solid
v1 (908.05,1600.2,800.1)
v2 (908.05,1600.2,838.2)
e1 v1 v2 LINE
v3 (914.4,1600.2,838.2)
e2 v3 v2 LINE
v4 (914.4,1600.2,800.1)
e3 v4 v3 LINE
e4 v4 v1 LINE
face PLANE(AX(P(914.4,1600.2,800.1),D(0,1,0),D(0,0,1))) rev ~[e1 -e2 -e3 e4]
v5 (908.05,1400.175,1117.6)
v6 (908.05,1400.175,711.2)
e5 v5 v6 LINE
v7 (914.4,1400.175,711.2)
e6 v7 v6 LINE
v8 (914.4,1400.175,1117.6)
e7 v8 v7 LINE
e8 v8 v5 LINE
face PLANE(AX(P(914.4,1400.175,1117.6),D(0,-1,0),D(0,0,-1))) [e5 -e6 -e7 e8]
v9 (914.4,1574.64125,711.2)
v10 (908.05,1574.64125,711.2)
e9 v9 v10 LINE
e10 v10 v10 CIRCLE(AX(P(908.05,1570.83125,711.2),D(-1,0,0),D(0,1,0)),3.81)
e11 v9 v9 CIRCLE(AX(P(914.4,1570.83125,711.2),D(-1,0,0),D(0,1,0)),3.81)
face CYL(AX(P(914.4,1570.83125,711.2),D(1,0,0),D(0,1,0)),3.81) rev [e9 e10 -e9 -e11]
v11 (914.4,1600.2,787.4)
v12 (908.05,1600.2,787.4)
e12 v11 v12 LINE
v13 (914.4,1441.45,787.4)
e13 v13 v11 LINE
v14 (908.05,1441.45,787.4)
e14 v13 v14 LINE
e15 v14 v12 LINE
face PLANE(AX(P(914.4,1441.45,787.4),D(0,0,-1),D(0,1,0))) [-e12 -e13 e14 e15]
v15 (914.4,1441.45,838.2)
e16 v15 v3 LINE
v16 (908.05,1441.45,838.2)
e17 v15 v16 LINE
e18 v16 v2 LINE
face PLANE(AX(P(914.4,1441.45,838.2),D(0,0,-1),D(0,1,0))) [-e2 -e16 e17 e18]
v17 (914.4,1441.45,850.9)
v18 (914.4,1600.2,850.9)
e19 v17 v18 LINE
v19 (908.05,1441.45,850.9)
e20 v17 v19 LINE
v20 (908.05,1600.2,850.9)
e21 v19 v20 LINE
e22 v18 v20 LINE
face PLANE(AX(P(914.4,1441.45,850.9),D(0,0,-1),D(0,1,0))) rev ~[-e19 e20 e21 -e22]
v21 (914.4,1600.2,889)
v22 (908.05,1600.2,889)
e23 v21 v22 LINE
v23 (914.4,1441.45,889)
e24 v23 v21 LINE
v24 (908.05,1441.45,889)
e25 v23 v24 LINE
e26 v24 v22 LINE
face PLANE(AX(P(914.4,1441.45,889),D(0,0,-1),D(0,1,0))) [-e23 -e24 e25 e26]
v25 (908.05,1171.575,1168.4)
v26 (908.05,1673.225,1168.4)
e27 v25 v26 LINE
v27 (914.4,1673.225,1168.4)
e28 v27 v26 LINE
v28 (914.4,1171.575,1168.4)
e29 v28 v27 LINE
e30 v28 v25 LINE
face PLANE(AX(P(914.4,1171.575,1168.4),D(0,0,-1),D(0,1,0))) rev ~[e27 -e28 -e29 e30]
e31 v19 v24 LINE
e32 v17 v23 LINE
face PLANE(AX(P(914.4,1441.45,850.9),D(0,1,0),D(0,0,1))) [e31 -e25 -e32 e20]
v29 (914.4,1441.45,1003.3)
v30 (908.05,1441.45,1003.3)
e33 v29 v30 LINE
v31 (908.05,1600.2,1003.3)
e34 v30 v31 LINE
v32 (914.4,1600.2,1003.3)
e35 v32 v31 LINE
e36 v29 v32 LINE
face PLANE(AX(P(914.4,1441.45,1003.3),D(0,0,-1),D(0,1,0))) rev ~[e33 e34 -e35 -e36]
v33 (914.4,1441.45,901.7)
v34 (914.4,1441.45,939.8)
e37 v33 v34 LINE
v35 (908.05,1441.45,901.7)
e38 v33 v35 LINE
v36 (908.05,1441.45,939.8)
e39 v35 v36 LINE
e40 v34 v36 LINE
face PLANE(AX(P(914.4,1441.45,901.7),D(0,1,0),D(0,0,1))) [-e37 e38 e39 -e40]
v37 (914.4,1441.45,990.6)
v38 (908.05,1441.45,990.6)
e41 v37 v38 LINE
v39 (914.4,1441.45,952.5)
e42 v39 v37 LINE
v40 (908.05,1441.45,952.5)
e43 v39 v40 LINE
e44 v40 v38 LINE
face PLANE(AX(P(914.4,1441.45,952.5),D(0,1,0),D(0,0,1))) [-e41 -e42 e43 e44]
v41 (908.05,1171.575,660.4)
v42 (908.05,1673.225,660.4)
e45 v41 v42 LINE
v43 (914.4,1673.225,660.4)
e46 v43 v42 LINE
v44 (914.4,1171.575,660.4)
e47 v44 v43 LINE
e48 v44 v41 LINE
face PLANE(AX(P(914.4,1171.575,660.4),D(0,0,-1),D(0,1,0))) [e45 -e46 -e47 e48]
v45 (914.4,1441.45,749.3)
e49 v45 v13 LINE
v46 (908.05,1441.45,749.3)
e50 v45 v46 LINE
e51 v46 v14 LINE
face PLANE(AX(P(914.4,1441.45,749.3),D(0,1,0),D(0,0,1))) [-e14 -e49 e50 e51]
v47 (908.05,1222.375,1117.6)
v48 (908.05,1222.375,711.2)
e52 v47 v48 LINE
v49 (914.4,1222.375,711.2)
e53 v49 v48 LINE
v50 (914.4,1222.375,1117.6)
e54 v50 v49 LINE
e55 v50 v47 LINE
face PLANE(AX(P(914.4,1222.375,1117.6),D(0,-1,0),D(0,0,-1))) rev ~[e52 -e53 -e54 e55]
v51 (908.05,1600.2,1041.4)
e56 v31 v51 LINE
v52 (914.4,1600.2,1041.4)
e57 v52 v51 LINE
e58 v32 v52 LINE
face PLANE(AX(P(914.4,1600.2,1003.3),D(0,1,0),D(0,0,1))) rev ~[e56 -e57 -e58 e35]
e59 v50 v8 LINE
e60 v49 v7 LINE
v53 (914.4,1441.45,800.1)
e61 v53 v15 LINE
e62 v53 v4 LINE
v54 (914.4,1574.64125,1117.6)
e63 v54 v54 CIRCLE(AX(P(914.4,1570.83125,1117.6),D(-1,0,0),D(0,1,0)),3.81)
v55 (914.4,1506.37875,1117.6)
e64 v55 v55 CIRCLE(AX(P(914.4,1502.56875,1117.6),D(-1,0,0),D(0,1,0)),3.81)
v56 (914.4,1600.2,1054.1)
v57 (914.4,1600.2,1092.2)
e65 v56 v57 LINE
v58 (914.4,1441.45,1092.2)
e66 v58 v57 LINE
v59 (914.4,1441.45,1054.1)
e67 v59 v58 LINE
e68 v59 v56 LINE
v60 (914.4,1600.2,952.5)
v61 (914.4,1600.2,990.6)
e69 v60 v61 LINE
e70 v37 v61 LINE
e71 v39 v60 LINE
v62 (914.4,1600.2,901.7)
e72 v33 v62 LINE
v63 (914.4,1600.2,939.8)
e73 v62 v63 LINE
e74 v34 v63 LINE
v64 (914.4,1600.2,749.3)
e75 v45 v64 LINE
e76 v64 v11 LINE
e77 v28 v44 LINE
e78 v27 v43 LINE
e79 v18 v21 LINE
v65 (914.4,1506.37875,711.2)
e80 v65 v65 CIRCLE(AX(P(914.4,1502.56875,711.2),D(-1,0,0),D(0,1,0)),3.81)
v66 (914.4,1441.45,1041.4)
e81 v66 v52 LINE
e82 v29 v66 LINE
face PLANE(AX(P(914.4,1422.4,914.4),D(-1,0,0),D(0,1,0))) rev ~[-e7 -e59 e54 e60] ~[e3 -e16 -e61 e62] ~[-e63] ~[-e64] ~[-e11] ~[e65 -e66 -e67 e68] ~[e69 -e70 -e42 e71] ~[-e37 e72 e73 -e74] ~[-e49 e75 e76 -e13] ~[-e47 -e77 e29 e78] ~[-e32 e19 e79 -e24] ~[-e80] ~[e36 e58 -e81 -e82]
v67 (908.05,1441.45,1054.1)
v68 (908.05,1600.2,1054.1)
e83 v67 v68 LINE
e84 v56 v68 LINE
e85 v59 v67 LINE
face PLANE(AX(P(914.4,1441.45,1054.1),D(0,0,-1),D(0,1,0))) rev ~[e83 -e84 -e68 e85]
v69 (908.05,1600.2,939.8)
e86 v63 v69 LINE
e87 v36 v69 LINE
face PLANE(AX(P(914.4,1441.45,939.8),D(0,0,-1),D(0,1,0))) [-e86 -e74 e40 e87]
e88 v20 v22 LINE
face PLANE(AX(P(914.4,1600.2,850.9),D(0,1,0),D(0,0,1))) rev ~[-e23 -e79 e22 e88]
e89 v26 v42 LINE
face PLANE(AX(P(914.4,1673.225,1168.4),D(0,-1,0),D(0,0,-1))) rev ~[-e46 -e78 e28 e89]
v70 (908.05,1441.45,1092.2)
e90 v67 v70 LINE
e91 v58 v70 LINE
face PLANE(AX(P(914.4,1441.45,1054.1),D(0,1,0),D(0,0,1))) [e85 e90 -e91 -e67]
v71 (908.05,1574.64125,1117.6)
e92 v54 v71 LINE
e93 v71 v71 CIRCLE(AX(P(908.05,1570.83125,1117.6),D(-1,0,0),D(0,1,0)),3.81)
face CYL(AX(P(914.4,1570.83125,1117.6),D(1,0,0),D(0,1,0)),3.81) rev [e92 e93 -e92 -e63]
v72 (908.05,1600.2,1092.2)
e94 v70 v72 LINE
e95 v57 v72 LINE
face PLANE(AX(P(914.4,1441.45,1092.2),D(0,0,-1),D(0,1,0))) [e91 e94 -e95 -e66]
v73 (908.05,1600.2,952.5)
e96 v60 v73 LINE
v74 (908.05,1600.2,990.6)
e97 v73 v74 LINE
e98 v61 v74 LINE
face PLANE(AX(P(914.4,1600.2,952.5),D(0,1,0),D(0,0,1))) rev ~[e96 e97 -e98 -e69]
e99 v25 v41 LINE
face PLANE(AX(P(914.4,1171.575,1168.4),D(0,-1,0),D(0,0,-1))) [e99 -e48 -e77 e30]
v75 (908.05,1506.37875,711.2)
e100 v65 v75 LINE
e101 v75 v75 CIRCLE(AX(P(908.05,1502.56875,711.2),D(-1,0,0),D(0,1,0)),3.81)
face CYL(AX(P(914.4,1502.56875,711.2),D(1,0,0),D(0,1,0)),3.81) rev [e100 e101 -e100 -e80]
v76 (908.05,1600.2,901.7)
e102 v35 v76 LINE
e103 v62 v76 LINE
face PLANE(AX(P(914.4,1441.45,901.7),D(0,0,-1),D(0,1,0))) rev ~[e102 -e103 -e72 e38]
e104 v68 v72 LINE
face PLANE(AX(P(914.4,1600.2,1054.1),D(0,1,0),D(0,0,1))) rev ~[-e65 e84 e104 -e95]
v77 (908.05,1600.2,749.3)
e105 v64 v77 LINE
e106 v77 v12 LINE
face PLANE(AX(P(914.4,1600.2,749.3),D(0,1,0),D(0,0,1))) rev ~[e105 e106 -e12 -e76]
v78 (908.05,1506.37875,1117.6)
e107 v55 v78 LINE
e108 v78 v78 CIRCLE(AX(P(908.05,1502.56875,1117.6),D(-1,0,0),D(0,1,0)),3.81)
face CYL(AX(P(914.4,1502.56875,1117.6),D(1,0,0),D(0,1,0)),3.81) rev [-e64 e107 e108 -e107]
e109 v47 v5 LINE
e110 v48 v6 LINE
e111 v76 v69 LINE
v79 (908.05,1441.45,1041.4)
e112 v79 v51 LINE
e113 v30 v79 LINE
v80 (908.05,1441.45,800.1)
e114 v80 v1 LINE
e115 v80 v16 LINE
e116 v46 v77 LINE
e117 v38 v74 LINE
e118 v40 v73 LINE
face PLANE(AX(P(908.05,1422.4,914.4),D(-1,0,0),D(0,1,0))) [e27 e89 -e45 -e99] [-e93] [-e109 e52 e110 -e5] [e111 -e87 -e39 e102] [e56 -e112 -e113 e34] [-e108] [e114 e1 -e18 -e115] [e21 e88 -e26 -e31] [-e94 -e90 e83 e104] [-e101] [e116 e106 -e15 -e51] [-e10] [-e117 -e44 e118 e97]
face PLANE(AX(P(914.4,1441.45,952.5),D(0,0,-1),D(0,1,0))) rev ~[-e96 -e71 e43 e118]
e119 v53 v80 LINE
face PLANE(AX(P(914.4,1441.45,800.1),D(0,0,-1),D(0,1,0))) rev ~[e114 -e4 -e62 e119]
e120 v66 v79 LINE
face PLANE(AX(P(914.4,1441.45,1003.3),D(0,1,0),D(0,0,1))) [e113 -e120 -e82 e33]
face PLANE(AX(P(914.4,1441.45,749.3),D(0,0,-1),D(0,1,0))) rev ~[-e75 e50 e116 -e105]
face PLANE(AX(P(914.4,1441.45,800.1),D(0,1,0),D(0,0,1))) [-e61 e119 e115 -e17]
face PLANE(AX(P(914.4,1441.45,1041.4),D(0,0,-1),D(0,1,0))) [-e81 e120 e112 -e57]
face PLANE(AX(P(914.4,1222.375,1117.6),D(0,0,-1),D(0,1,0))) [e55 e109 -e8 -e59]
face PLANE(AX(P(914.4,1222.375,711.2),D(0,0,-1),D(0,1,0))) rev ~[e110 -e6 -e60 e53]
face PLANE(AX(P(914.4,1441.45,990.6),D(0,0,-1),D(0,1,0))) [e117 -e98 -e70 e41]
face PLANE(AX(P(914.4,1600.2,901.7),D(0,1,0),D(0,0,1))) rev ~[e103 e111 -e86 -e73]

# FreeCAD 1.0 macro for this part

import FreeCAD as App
import Part
import Sketcher
Q = App.Units.Quantity


def add_polygon(sketch, points):
    """Adds a closed chain of lines whose ends are joined by coincident constraints."""
    first, n = sketch.GeometryCount, len(points)
    for a, b in zip(points, points[1:] + points[:1]):
        sketch.addGeometry(Part.LineSegment(App.Vector(*a, 0), App.Vector(*b, 0)), False)
    for i in range(n):
        sketch.addConstraint(Sketcher.Constraint("Coincident", first + i, 2, first + (i + 1) % n, 1))

doc = App.newDocument("Part")
params = doc.addObject("Spreadsheet::Sheet", "Params")
for row, (alias, value) in enumerate([
    ("sketch1_diameter", "0.3 in"),
    ("sketch1_width", "7 in"),
    ("sketch1_height", "20 in"),
    ("sketch1_height2", "16 in"),
    ("sketch1_width2", "19.75 in"),
    ("pad1_length", "0.25 in"),
    ("sketch2_height", "1.5 in"),
    ("sketch2_width", "6.25 in"),
    ("pocket1_length", "0.25 in"),
    ("linearpattern_pitch", "2 in"),
], start=1):
    params.set(f"A{row}", alias)
    params.set(f"B{row}", "=" + value)
    params.setAlias(f"B{row}", alias)

body = doc.addObject("PartDesign::Body", "Body")

sketch1 = body.newObject("Sketcher::SketchObject", "Sketch")
sketch1.AttachmentSupport = (doc.getObject("YZ_Plane"), [""])
sketch1.MapMode = "FlatFace"
sketch1.AttachmentOffset = App.Placement(App.Vector(0, 0, 36 * 25.4), App.Rotation())
add_polygon(sketch1, [(1171.6, 660.4), (1171.6, 1168.4), (1673.2, 1168.4), (1673.2, 660.4)])
sketch1.addGeometry(Part.Circle(App.Vector(1502.6, 1117.6, 0), App.Vector(0, 0, 1), 3.8), False)
sketch1.addGeometry(Part.Circle(App.Vector(1570.8, 1117.6, 0), App.Vector(0, 0, 1), 3.8), False)
add_polygon(sketch1, [(1400.2, 1117.6), (1222.4, 1117.6), (1222.4, 711.2), (1400.2, 711.2)])
sketch1.addGeometry(Part.Circle(App.Vector(1502.6, 711.2, 0), App.Vector(0, 0, 1), 3.8), False)
sketch1.addGeometry(Part.Circle(App.Vector(1570.8, 711.2, 0), App.Vector(0, 0, 1), 3.8), False)
sketch1.addConstraint(Sketcher.Constraint("Vertical", 0))
sketch1.addConstraint(Sketcher.Constraint("Horizontal", 1))
sketch1.addConstraint(Sketcher.Constraint("Vertical", 2))
sketch1.addConstraint(Sketcher.Constraint("Horizontal", 3))
sketch1.addConstraint(Sketcher.Constraint("Horizontal", 6))
sketch1.addConstraint(Sketcher.Constraint("Vertical", 7))
sketch1.addConstraint(Sketcher.Constraint("Horizontal", 8))
sketch1.addConstraint(Sketcher.Constraint("Vertical", 9))
sketch1.addConstraint(Sketcher.Constraint("Equal", 4, 5))
sketch1.addConstraint(Sketcher.Constraint("Equal", 5, 10))
sketch1.addConstraint(Sketcher.Constraint("Equal", 10, 11))
sketch1.addConstraint(Sketcher.Constraint("Horizontal", 4, 3, 5, 3))
sketch1.addConstraint(Sketcher.Constraint("Horizontal", 10, 3, 11, 3))
sketch1.addConstraint(Sketcher.Constraint("Horizontal", 5, 3, 6, 2))
sketch1.addConstraint(Sketcher.Constraint("Horizontal", 11, 3, 7, 2))
sketch1.addConstraint(Sketcher.Constraint("Vertical", 4, 3, 10, 3))
sketch1.addConstraint(Sketcher.Constraint("Vertical", 5, 3, 11, 3))
sketch1.addConstraint(Sketcher.Constraint("Diameter", 4, Q("0.3 in")))
sketch1.addConstraint(Sketcher.Constraint("DistanceX", 6, 2, 6, 1, Q("7 in")))
sketch1.addConstraint(Sketcher.Constraint("DistanceY", 0, 1, 0, 2, Q("20 in")))
sketch1.addConstraint(Sketcher.Constraint("DistanceY", 7, 2, 7, 1, Q("16 in")))
sketch1.addConstraint(Sketcher.Constraint("DistanceY", -1, 1, 4, 3, Q("44 in")))
sketch1.addConstraint(Sketcher.Constraint("DistanceY", -1, 1, 0, 2, Q("46 in")))
sketch1.addConstraint(Sketcher.Constraint("DistanceX", 0, 2, 6, 2, Q("2 in")))
sketch1.addConstraint(Sketcher.Constraint("DistanceX", 1, 1, 1, 2, Q("19.75 in")))
sketch1.addConstraint(Sketcher.Constraint("DistanceX", -1, 1, 4, 3, Q("59.15625 in")))
sketch1.addConstraint(Sketcher.Constraint("DistanceX", -1, 1, 5, 3, Q("61.84375 in")))
sketch1.addConstraint(Sketcher.Constraint("DistanceX", -1, 1, 0, 2, Q("46.125 in")))
sketch1.setExpression("Constraints[25]", "Params.sketch1_diameter")
sketch1.setExpression("Constraints[26]", "Params.sketch1_width")
sketch1.setExpression("Constraints[27]", "Params.sketch1_height")
sketch1.setExpression("Constraints[28]", "Params.sketch1_height2")
sketch1.setExpression("Constraints[32]", "Params.sketch1_width2")
pad1 = body.newObject("PartDesign::Pad", "Pad")
pad1.Profile = sketch1
pad1.setExpression("Length", "Params.pad1_length")
pad1.Reversed = True

sketch2 = body.newObject("Sketcher::SketchObject", "Sketch001")
sketch2.AttachmentSupport = (doc.getObject("YZ_Plane"), [""])
sketch2.MapMode = "FlatFace"
sketch2.AttachmentOffset = App.Placement(App.Vector(0, 0, 36 * 25.4), App.Rotation())
add_polygon(sketch2, [(1441, 1092), (1441, 1054), (1600, 1054), (1600, 1092)])
sketch2.addConstraint(Sketcher.Constraint("Vertical", 0))
sketch2.addConstraint(Sketcher.Constraint("Horizontal", 1))
sketch2.addConstraint(Sketcher.Constraint("Vertical", 2))
sketch2.addConstraint(Sketcher.Constraint("Horizontal", 3))
sketch2.addConstraint(Sketcher.Constraint("DistanceY", 0, 2, 0, 1, Q("1.5 in")))
sketch2.addConstraint(Sketcher.Constraint("DistanceX", -1, 1, 1, 2, Q("63 in")))
sketch2.addConstraint(Sketcher.Constraint("DistanceY", -1, 1, 2, 2, Q("43 in")))
sketch2.addConstraint(Sketcher.Constraint("DistanceX", 1, 1, 1, 2, Q("6.25 in")))
sketch2.setExpression("Constraints[8]", "Params.sketch2_height")
sketch2.setExpression("Constraints[11]", "Params.sketch2_width")
pocket1 = body.newObject("PartDesign::Pocket", "Pocket")
pocket1.Profile = sketch2
pocket1.setExpression("Length", "Params.pocket1_length")
doc.recompute()

linearpattern = body.newObject("PartDesign::LinearPattern", "LinearPattern")
linearpattern.Originals = [pocket1]
linearpattern.Direction = (doc.getObject("Z_Axis"), [""])
linearpattern.Mode = "offset"
linearpattern.setExpression("Offset", "Params.linearpattern_pitch")
linearpattern.Occurrences = 7
linearpattern.Reversed = True
body.Tip = linearpattern

doc.recompute()
